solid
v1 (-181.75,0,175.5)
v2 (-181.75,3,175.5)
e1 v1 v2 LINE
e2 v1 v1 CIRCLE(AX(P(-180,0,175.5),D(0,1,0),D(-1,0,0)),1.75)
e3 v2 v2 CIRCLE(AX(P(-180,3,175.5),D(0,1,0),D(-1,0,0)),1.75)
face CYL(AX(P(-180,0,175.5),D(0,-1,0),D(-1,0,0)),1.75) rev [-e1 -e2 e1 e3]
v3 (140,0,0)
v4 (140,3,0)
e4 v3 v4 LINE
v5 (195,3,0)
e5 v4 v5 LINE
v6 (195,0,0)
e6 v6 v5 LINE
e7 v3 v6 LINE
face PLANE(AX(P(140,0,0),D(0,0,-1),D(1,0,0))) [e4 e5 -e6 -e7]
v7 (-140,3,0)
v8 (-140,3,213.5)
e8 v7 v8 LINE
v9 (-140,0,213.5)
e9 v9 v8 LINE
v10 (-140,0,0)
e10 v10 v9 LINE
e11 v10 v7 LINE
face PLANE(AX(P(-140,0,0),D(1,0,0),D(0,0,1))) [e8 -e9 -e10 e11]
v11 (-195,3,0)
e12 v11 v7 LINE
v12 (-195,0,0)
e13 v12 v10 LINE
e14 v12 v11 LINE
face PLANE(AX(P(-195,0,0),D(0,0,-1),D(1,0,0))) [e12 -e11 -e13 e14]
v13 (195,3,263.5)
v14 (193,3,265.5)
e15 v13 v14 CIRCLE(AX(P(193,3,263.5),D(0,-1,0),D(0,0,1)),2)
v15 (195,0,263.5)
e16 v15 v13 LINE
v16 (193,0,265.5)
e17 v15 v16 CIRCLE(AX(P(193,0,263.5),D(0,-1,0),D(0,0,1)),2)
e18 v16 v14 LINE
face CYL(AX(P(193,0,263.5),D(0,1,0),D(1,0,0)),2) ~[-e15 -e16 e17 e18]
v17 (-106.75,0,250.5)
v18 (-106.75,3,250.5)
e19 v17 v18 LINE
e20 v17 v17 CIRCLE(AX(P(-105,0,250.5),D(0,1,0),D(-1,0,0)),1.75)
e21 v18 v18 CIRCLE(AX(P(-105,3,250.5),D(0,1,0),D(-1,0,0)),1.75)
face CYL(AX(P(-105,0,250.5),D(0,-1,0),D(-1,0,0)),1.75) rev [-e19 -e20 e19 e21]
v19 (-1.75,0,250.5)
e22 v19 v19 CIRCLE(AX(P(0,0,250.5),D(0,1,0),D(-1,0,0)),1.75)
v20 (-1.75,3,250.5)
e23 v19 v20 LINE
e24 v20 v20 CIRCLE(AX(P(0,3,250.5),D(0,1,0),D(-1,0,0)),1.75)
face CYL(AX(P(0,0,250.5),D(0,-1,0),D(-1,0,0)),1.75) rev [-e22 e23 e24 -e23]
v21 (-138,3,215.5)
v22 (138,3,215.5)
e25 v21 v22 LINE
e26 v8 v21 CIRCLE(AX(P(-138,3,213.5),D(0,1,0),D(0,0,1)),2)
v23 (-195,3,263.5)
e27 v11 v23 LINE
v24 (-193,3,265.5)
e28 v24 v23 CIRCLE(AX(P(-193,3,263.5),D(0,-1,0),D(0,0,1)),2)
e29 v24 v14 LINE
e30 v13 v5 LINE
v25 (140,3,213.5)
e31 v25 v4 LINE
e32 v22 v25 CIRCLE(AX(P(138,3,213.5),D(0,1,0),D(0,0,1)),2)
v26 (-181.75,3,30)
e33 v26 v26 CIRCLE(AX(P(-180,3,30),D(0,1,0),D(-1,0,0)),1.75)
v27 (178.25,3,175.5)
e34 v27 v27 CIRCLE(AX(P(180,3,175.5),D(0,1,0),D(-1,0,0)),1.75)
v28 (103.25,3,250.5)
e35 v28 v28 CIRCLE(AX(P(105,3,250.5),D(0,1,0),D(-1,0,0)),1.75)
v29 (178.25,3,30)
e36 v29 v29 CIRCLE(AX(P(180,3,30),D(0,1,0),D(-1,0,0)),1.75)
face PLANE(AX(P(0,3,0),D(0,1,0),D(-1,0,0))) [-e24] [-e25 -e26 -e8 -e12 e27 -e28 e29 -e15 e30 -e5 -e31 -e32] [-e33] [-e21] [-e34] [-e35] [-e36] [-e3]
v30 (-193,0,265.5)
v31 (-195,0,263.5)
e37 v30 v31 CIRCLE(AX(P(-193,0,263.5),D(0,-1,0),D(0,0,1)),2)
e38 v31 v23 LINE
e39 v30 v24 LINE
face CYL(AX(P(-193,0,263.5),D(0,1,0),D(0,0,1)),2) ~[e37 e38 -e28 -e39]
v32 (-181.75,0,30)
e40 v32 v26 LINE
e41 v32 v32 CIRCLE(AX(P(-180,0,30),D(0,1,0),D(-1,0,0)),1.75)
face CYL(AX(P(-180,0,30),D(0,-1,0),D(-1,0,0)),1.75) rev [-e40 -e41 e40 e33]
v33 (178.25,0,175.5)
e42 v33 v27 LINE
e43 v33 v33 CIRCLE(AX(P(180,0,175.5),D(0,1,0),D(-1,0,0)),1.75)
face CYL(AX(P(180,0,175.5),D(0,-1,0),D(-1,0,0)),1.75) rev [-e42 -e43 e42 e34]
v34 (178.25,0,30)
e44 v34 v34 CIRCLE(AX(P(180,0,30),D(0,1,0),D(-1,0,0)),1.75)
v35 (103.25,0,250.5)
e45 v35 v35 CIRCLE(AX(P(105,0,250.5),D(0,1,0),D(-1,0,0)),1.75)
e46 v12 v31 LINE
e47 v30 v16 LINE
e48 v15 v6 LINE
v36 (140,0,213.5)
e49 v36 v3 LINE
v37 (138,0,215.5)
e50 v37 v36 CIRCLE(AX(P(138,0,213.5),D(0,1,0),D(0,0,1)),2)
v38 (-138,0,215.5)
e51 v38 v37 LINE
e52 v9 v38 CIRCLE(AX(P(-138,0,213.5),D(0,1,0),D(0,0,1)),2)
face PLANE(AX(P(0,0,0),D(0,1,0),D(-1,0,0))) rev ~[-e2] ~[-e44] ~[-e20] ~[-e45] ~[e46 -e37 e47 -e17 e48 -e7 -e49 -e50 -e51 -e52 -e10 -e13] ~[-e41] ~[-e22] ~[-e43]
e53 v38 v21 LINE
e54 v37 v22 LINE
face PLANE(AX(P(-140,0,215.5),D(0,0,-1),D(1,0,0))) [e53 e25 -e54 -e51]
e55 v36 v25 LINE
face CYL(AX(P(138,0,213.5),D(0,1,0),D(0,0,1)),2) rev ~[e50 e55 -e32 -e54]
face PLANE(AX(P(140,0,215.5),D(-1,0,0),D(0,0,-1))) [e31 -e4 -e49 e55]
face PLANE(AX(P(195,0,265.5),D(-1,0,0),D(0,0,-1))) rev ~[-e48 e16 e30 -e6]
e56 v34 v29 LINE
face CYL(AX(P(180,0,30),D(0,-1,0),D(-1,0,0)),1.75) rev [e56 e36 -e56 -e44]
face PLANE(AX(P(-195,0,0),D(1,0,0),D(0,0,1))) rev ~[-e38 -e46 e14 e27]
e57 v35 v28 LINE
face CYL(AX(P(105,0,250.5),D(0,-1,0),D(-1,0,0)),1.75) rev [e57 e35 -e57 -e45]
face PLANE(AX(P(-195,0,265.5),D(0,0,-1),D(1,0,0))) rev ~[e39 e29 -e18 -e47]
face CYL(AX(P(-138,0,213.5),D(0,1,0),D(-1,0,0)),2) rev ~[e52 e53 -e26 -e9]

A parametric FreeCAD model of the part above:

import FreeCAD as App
import Part
import Sketcher
from FreeCAD import Vector


def edges_at(feature, points):
    """Names of the edges that pass closest to the given points."""
    edges = feature.Shape.Edges
    near = lambda p: min(range(len(edges)), key=lambda i: edges[i].distToShape(Part.Vertex(*p))[0])
    return sorted({f"Edge{near(p) + 1}" for p in points})

doc = App.newDocument("Part")
params = doc.addObject("Spreadsheet::Sheet", "Params")
for row, (alias, value) in enumerate([
    ("sketch1_diameter", "3.5 mm"),
    ("sketch1_width", "55 mm"),
    ("sketch1_width2", "390 mm"),
    ("sketch1_height", "265.5 mm"),
    ("pad1_length", "3 mm"),
    ("fillet_radius", "2 mm"),
], start=1):
    params.set(f"A{row}", alias)
    params.set(f"B{row}", "=" + value)
    params.setAlias(f"B{row}", alias)

body = doc.addObject("PartDesign::Body", "Body")

sketch1 = doc.addObject("Sketcher::SketchObject", "Sketch")
body.addObject(sketch1)
sketch1.AttachmentSupport = (doc.XZ_Plane, [""])
sketch1.MapMode = "FlatFace"
sketch1.addGeometry([
    Part.LineSegment(Vector(195, 265.5, 0), Vector(195, 0, 0)),
    Part.LineSegment(Vector(195, 0, 0), Vector(140, 0, 0)),
    Part.LineSegment(Vector(140, 0, 0), Vector(140, 215.5, 0)),
    Part.LineSegment(Vector(140, 215.5, 0), Vector(-140, 215.5, 0)),
    Part.LineSegment(Vector(-140, 215.5, 0), Vector(-140, 0, 0)),
    Part.LineSegment(Vector(-140, 0, 0), Vector(-195, 0, 0)),
    Part.LineSegment(Vector(-195, 0, 0), Vector(-195, 265.5, 0)),
    Part.LineSegment(Vector(-195, 265.5, 0), Vector(195, 265.5, 0)),
    Part.Circle(Vector(180, 30, 0), Vector(0, 0, 1), 1.75),
    Part.Circle(Vector(180, 175.5, 0), Vector(0, 0, 1), 1.75),
    Part.Circle(Vector(105, 250.5, 0), Vector(0, 0, 1), 1.75),
    Part.Circle(Vector(-180, 30, 0), Vector(0, 0, 1), 1.75),
    Part.Circle(Vector(0, 250.5, 0), Vector(0, 0, 1), 1.75),
    Part.Circle(Vector(-180, 175.5, 0), Vector(0, 0, 1), 1.75),
    Part.Circle(Vector(-105, 250.5, 0), Vector(0, 0, 1), 1.75),
], False)
sketch1.addConstraint([
    Sketcher.Constraint("Coincident", 0, 2, 1, 1),
    Sketcher.Constraint("Coincident", 1, 2, 2, 1),
    Sketcher.Constraint("Coincident", 2, 2, 3, 1),
    Sketcher.Constraint("Coincident", 3, 2, 4, 1),
    Sketcher.Constraint("Coincident", 4, 2, 5, 1),
    Sketcher.Constraint("Coincident", 5, 2, 6, 1),
    Sketcher.Constraint("Coincident", 6, 2, 7, 1),
    Sketcher.Constraint("Coincident", 7, 2, 0, 1),
    Sketcher.Constraint("Vertical", 0),
    Sketcher.Constraint("Horizontal", 1),
    Sketcher.Constraint("Vertical", 2),
    Sketcher.Constraint("Horizontal", 3),
    Sketcher.Constraint("Vertical", 4),
    Sketcher.Constraint("Horizontal", 5),
    Sketcher.Constraint("Vertical", 6),
    Sketcher.Constraint("Horizontal", 7),
    Sketcher.Constraint("Equal", 8, 9),
    Sketcher.Constraint("Equal", 9, 10),
    Sketcher.Constraint("Equal", 10, 11),
    Sketcher.Constraint("Equal", 11, 12),
    Sketcher.Constraint("Equal", 12, 13),
    Sketcher.Constraint("Equal", 13, 14),
    Sketcher.Constraint("Symmetric", 1, 2, 4, 2, -1, 1),
    Sketcher.Constraint("Symmetric", 8, 3, 11, 3, -2),
    Sketcher.Constraint("Symmetric", 9, 3, 13, 3, -2),
    Sketcher.Constraint("Symmetric", 10, 3, 14, 3, -2),
    Sketcher.Constraint("Symmetric", 0, 2, 5, 2, -2),
    Sketcher.Constraint("PointOnObject", 12, 3, -2),
    Sketcher.Constraint("Horizontal", 10, 3, 12, 3),
    Sketcher.Constraint("Vertical", 8, 3, 9, 3),
    Sketcher.Constraint("Diameter", 8, 3.5),
    Sketcher.Constraint("DistanceX", 1, 2, 1, 1, 55.0),
    Sketcher.Constraint("DistanceX", 7, 1, 7, 2, 390.0),
    Sketcher.Constraint("DistanceY", -1, 1, 8, 3, 30.0),
    Sketcher.Constraint("DistanceX", 8, 3, 0, 2, 15.0),
    Sketcher.Constraint("DistanceX", 10, 3, 0, 2, 90.0),
    Sketcher.Constraint("DistanceY", 3, 2, 6, 2, 50.0),
    Sketcher.Constraint("DistanceY", 13, 3, 6, 2, 90.0),
    Sketcher.Constraint("DistanceY", 14, 3, 6, 2, 15.0),
    Sketcher.Constraint("DistanceY", 0, 2, 0, 1, 265.5),
])
sketch1.setExpression("Constraints[30]", "Params.sketch1_diameter")
sketch1.setExpression("Constraints[31]", "Params.sketch1_width")
sketch1.setExpression("Constraints[32]", "Params.sketch1_width2")
sketch1.setExpression("Constraints[39]", "Params.sketch1_height")
pad1 = doc.addObject("PartDesign::Pad", "Pad")
body.addObject(pad1)
pad1.Profile = sketch1
pad1.setExpression("Length", "Params.pad1_length")
pad1.Reversed = True
doc.recompute()

fillet = doc.addObject("PartDesign::Fillet", "Fillet")
body.addObject(fillet)
fillet.Base = (pad1, edges_at(pad1, [
    (195, 1.5, 265.5),
    (-195, 1.5, 265.5),
    (140, 1.5, 215.5),
    (-140, 1.5, 215.5),
]))
fillet.setExpression("Radius", "Params.fillet_radius")

doc.recompute()
